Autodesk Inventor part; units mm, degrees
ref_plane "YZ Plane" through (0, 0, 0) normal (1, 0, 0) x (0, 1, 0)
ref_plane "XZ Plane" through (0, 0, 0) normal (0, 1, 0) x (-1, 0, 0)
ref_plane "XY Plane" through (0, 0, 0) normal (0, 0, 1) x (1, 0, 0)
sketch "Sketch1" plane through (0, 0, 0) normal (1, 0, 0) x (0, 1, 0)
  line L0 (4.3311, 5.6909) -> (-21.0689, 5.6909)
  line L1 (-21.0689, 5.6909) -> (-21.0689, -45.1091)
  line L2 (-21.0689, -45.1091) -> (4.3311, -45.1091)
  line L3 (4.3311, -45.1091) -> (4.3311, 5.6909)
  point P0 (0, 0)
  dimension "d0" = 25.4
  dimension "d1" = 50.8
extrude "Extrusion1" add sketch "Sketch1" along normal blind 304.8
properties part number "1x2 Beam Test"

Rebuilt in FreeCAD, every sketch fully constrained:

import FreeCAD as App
import Part
import Sketcher

V = App.Vector
Q = App.Units.Quantity

doc = App.newDocument("Part")
body = doc.addObject("PartDesign::Body", "Body")

# Sketch on YZ plane
sketch1 = body.newObject("Sketcher::SketchObject", "Sketch")
sketch1.AttachmentSupport = (doc.getObject("YZ_Plane"), [""])
sketch1.MapMode = "FlatFace"
sketch1.addGeometry(Part.LineSegment(V(4, -45, 0), V(4, 6, 0)), False)
sketch1.addGeometry(Part.LineSegment(V(4, 6, 0), V(-21, 6, 0)), False)
sketch1.addGeometry(Part.LineSegment(V(-21, 6, 0), V(-21, -45, 0)), False)
sketch1.addGeometry(Part.LineSegment(V(-21, -45, 0), V(4, -45, 0)), False)
sketch1.addConstraint(Sketcher.Constraint("Coincident", 0, 2, 1, 1))
sketch1.addConstraint(Sketcher.Constraint("Coincident", 1, 2, 2, 1))
sketch1.addConstraint(Sketcher.Constraint("Coincident", 2, 2, 3, 1))
sketch1.addConstraint(Sketcher.Constraint("Coincident", 3, 2, 0, 1))
sketch1.addConstraint(Sketcher.Constraint("Vertical", 0))
sketch1.addConstraint(Sketcher.Constraint("Horizontal", 1))
sketch1.addConstraint(Sketcher.Constraint("Vertical", 2))
sketch1.addConstraint(Sketcher.Constraint("Horizontal", 3))
sketch1.addConstraint(Sketcher.Constraint("DistanceX", 1, 2, 1, 1, Q("1 in")))
sketch1.addConstraint(Sketcher.Constraint("DistanceY", 0, 1, 0, 2, Q("2 in")))
sketch1.addConstraint(Sketcher.Constraint("DistanceX", -1, 1, 0, 2, Q("0.1705118 in")))
sketch1.addConstraint(Sketcher.Constraint("DistanceY", -1, 1, 0, 2, Q("5.691 mm")))
pad1 = body.newObject("PartDesign::Pad", "Pad")
pad1.Profile = sketch1
pad1.Length = Q("12 in")

doc.recompute()
